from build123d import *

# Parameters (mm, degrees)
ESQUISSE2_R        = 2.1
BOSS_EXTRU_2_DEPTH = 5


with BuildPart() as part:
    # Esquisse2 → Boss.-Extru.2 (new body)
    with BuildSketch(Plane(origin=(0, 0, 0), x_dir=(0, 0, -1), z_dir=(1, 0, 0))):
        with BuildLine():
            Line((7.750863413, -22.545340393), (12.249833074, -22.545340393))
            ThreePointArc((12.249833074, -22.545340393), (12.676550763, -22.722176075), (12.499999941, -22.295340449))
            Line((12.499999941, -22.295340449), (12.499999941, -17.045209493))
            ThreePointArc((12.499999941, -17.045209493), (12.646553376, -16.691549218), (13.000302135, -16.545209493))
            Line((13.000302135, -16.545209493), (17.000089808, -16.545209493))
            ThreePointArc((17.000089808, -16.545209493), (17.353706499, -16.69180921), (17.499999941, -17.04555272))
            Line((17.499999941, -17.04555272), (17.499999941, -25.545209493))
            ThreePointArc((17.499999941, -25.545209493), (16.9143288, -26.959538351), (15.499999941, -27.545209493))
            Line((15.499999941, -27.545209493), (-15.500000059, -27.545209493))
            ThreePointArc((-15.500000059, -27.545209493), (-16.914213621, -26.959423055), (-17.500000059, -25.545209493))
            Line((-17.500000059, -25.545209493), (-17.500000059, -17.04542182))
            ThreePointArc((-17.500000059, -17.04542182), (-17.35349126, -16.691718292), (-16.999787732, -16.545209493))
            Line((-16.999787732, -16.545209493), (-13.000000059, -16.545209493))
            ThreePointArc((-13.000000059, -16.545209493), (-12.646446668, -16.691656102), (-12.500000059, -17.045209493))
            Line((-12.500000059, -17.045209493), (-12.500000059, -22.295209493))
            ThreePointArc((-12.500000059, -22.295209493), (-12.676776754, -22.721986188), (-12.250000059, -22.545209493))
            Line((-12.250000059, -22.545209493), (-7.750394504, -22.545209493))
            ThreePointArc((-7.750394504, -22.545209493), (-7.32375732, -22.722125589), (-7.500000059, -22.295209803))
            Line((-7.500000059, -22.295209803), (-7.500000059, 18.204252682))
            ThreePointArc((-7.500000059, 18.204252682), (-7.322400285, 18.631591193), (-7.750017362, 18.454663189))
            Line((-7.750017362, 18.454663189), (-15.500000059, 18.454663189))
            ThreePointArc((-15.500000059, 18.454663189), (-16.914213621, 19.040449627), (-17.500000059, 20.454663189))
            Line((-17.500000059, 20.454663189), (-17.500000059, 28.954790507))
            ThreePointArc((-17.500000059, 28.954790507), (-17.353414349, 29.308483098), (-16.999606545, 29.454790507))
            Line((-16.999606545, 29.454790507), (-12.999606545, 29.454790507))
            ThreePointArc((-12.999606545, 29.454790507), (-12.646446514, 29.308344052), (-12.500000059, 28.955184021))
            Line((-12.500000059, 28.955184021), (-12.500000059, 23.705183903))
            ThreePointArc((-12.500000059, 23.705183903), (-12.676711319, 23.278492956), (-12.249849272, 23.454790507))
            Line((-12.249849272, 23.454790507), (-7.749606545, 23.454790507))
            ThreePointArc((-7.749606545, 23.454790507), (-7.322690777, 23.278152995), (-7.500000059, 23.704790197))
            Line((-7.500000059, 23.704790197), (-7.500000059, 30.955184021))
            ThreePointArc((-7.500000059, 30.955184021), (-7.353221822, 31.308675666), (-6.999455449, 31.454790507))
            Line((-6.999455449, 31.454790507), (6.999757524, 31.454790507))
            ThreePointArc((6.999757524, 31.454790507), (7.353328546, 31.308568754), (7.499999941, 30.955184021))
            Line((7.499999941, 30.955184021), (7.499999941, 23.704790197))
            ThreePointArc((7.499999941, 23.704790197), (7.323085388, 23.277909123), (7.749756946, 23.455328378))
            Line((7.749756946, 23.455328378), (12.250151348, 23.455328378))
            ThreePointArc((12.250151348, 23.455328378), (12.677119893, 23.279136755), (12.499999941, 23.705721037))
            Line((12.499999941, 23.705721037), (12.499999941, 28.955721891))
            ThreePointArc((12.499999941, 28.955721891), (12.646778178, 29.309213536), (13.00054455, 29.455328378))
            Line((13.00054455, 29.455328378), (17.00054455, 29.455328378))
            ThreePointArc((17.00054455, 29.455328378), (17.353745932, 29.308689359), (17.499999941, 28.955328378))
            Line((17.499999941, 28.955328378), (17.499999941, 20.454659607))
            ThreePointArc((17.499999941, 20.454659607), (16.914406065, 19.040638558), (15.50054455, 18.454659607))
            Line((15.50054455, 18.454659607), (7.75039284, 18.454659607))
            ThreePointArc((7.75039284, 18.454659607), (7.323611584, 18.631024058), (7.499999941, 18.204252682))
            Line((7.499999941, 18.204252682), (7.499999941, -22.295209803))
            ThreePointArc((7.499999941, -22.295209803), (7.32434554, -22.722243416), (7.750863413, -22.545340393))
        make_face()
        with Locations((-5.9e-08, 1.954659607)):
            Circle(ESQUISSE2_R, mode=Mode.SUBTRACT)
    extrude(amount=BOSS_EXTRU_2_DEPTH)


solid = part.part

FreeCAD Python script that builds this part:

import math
import FreeCAD as App
import Part
import Sketcher

V = App.Vector
Q = App.Units.Quantity

doc = App.newDocument("Part")
body = doc.addObject("PartDesign::Body", "Body")

sketch1 = doc.addObject("Sketcher::SketchObject", "Sketch")
body.addObject(sketch1)
sketch1.AttachmentSupport = (doc.YZ_Plane, [""])
sketch1.MapMode = "FlatFace"
sketch1.addGeometry([
    Part.LineSegment(V(-22.54534, -12.249833, 0), V(-22.54534, -7.750863, 0)),
    Part.ArcOfCircle(Part.Circle(V(-22.545208, -7.500863, 0), V(0, 0, 1), 0.25), math.radians(0.197902), math.radians(269.969729)),
    Part.LineSegment(V(-22.29521, -7.5, 0), V(18.204253, -7.5, 0)),
    Part.ArcOfCircle(Part.Circle(V(18.454252, -7.500393, 0), V(0, 0, 1), 0.25), math.radians(-89.906661), math.radians(179.90987)),
    Part.LineSegment(V(18.45466, -7.750393, 0), V(18.45466, -15.500545, 0)),
    Part.ArcOfCircle(Part.Circle(V(20.45466, -15.5, 0), V(0, 0, 1), 2), math.radians(-179.984398), math.radians(-89.999998)),
    Part.LineSegment(V(20.45466, -17.5, 0), V(28.955328, -17.5, 0)),
    Part.ArcOfCircle(Part.Circle(V(28.955329, -17, 0), V(0, 0, 1), 0.5), math.radians(-90.000034), math.radians(-0.062408)),
    Part.LineSegment(V(29.455328, -17.000545, 0), V(29.455328, -13.000545, 0)),
    Part.ArcOfCircle(Part.Circle(V(28.955329, -13, 0), V(0, 0, 1), 0.5), math.radians(-0.062425), math.radians(89.954941)),
    Part.LineSegment(V(28.955722, -12.5, 0), V(23.705721, -12.5, 0)),
    Part.ArcOfCircle(Part.Circle(V(23.455721, -12.500151, 0), V(0, 0, 1), 0.25), math.radians(90.090001), math.radians(360.034629)),
    Part.LineSegment(V(23.455328, -12.250151, 0), V(23.455328, -7.749757, 0)),
    Part.ArcOfCircle(Part.Circle(V(23.45479, -7.499758, 0), V(0, 0, 1), 0.25), math.radians(-0.055558), math.radians(270.123315)),
    Part.LineSegment(V(23.70479, -7.5, 0), V(30.955184, -7.5, 0)),
    Part.ArcOfCircle(Part.Circle(V(30.954791, -7, 0), V(0, 0, 1), 0.5), math.radians(-89.954913), math.radians(0.027797)),
    Part.LineSegment(V(31.454791, -6.999758, 0), V(31.454791, 6.999455, 0)),
    Part.ArcOfCircle(Part.Circle(V(30.954791, 7, 0), V(0, 0, 1), 0.5), math.radians(-0.062425), math.radians(89.954941)),
    Part.LineSegment(V(30.955184, 7.5, 0), V(23.70479, 7.5, 0)),
    Part.ArcOfCircle(Part.Circle(V(23.454791, 7.499607, 0), V(0, 0, 1), 0.25), math.radians(90), math.radians(360.090187)),
    Part.LineSegment(V(23.454791, 7.749607, 0), V(23.454791, 12.249849, 0)),
    Part.ArcOfCircle(Part.Circle(V(23.455184, 12.499849, 0), V(0, 0, 1), 0.25), math.radians(0.034629), math.radians(269.90983)),
    Part.LineSegment(V(23.705184, 12.5, 0), V(28.955184, 12.5, 0)),
    Part.ArcOfCircle(Part.Circle(V(28.954791, 13, 0), V(0, 0, 1), 0.5), math.radians(-89.954924), math.radians(-0.045076)),
    Part.LineSegment(V(29.454791, 12.999607, 0), V(29.454791, 16.999607, 0)),
    Part.ArcOfCircle(Part.Circle(V(28.954791, 17, 0), V(0, 0, 1), 0.5), math.radians(-0.045093), math.radians(90.000018)),
    Part.LineSegment(V(28.954791, 17.5, 0), V(20.454663, 17.5, 0)),
    Part.ArcOfCircle(Part.Circle(V(20.454663, 15.5, 0), V(0, 0, 1), 2), math.radians(90), math.radians(180)),
    Part.LineSegment(V(18.454663, 15.5, 0), V(18.454663, 7.750017, 0)),
    Part.ArcOfCircle(Part.Circle(V(18.454663, 7.499607, 0), V(0, 0, 1), 0.250411), math.radians(179.909961), math.radians(450)),
    Part.LineSegment(V(18.204253, 7.5, 0), V(-22.29521, 7.5, 0)),
    Part.ArcOfCircle(Part.Circle(V(-22.545209, 7.500395, 0), V(0, 0, 1), 0.25), math.radians(90), math.radians(359.9096)),
    Part.LineSegment(V(-22.545209, 7.750395, 0), V(-22.545209, 12.25, 0)),
    Part.ArcOfCircle(Part.Circle(V(-22.545209, 12.5, 0), V(0, 0, 1), 0.25), math.radians(0), math.radians(270)),
    Part.LineSegment(V(-22.295209, 12.5, 0), V(-17.045209, 12.5, 0)),
    Part.ArcOfCircle(Part.Circle(V(-17.045209, 13, 0), V(0, 0, 1), 0.5), math.radians(-90), math.radians(0)),
    Part.LineSegment(V(-16.545209, 13, 0), V(-16.545209, 16.999788, 0)),
    Part.ArcOfCircle(Part.Circle(V(-17.045422, 16.999788, 0), V(0, 0, 1), 0.500212), math.radians(0), math.radians(90)),
    Part.LineSegment(V(-17.045422, 17.5, 0), V(-25.545209, 17.5, 0)),
    Part.ArcOfCircle(Part.Circle(V(-25.545209, 15.5, 0), V(0, 0, 1), 2), math.radians(90), math.radians(180)),
    Part.LineSegment(V(-27.545209, 15.5, 0), V(-27.545209, -15.5, 0)),
    Part.ArcOfCircle(Part.Circle(V(-25.545603, -15.500393, 0), V(0, 0, 1), 1.999606), math.radians(179.988723), math.radians(270.011277)),
    Part.LineSegment(V(-25.545209, -17.5, 0), V(-17.045553, -17.5, 0)),
    Part.ArcOfCircle(Part.Circle(V(-17.045209, -17, 0), V(0, 0, 1), 0.5), math.radians(-90.039332), math.radians(-0.010284)),
    Part.LineSegment(V(-16.545209, -17.00009, 0), V(-16.545209, -13.000302, 0)),
    Part.ArcOfCircle(Part.Circle(V(-17.045209, -13, 0), V(0, 0, 1), 0.5), math.radians(-0.034629), math.radians(90.00001)),
    Part.LineSegment(V(-17.045209, -12.5, 0), V(-22.29534, -12.5, 0)),
    Part.ArcOfCircle(Part.Circle(V(-22.54534, -12.499833, 0), V(0, 0, 1), 0.25), math.radians(90), math.radians(359.961757)),
    Part.Circle(V(1.95466, 0, 0), V(0, 0, 1), 2.1),
], False)
sketch1.addConstraint([
    Sketcher.Constraint("Coincident", 0, 2, 1, 2),
    Sketcher.Constraint("Coincident", 1, 1, 2, 1),
    Sketcher.Constraint("Coincident", 2, 2, 3, 2),
    Sketcher.Constraint("Coincident", 3, 1, 4, 1),
    Sketcher.Constraint("Coincident", 4, 2, 5, 1),
    Sketcher.Constraint("Tangent", 5, 2, 6, 1),
    Sketcher.Constraint("Tangent", 6, 2, 7, 1),
    Sketcher.Constraint("Coincident", 7, 2, 8, 1),
    Sketcher.Constraint("Coincident", 8, 2, 9, 1),
    Sketcher.Constraint("Coincident", 9, 2, 10, 1),
    Sketcher.Constraint("Coincident", 10, 2, 11, 2),
    Sketcher.Constraint("Coincident", 11, 1, 12, 1),
    Sketcher.Constraint("Coincident", 12, 2, 13, 2),
    Sketcher.Constraint("Coincident", 13, 1, 14, 1),
    Sketcher.Constraint("Coincident", 14, 2, 15, 1),
    Sketcher.Constraint("Coincident", 15, 2, 16, 1),
    Sketcher.Constraint("Coincident", 16, 2, 17, 1),
    Sketcher.Constraint("Coincident", 17, 2, 18, 1),
    Sketcher.Constraint("Coincident", 18, 2, 19, 2),
    Sketcher.Constraint("Coincident", 19, 1, 20, 1),
    Sketcher.Constraint("Coincident", 20, 2, 21, 2),
    Sketcher.Constraint("Coincident", 21, 1, 22, 1),
    Sketcher.Constraint("Coincident", 22, 2, 23, 1),
    Sketcher.Constraint("Coincident", 23, 2, 24, 1),
    Sketcher.Constraint("Coincident", 24, 2, 25, 1),
    Sketcher.Constraint("Tangent", 25, 2, 26, 1),
    Sketcher.Constraint("Tangent", 26, 2, 27, 1),
    Sketcher.Constraint("Tangent", 27, 2, 28, 1),
    Sketcher.Constraint("Coincident", 28, 2, 29, 2),
    Sketcher.Constraint("Coincident", 29, 1, 30, 1),
    Sketcher.Constraint("Coincident", 30, 2, 31, 2),
    Sketcher.Constraint("Coincident", 31, 1, 32, 1),
    Sketcher.Constraint("Coincident", 32, 2, 33, 2),
    Sketcher.Constraint("Coincident", 33, 1, 34, 1),
    Sketcher.Constraint("Tangent", 34, 2, 35, 1),
    Sketcher.Constraint("Tangent", 35, 2, 36, 1),
    Sketcher.Constraint("Tangent", 36, 2, 37, 1),
    Sketcher.Constraint("Tangent", 37, 2, 38, 1),
    Sketcher.Constraint("Tangent", 38, 2, 39, 1),
    Sketcher.Constraint("Tangent", 39, 2, 40, 1),
    Sketcher.Constraint("Coincident", 40, 2, 41, 1),
    Sketcher.Constraint("Coincident", 41, 2, 42, 1),
    Sketcher.Constraint("Coincident", 42, 2, 43, 1),
    Sketcher.Constraint("Coincident", 43, 2, 44, 1),
    Sketcher.Constraint("Coincident", 44, 2, 45, 1),
    Sketcher.Constraint("Tangent", 45, 2, 46, 1),
    Sketcher.Constraint("Coincident", 46, 2, 47, 2),
    Sketcher.Constraint("Coincident", 47, 1, 0, 1),
    Sketcher.Constraint("Vertical", 0),
    Sketcher.Constraint("Horizontal", 2),
    Sketcher.Constraint("Vertical", 4),
    Sketcher.Constraint("Horizontal", 6),
    Sketcher.Constraint("Vertical", 8),
    Sketcher.Constraint("Horizontal", 10),
    Sketcher.Constraint("Vertical", 12),
    Sketcher.Constraint("Horizontal", 14),
    Sketcher.Constraint("Vertical", 16),
    Sketcher.Constraint("Horizontal", 18),
    Sketcher.Constraint("Vertical", 20),
    Sketcher.Constraint("Horizontal", 22),
    Sketcher.Constraint("Vertical", 24),
    Sketcher.Constraint("Horizontal", 26),
    Sketcher.Constraint("Vertical", 28),
    Sketcher.Constraint("Horizontal", 30),
    Sketcher.Constraint("Vertical", 32),
    Sketcher.Constraint("Horizontal", 34),
    Sketcher.Constraint("Vertical", 36),
    Sketcher.Constraint("Horizontal", 38),
    Sketcher.Constraint("Vertical", 40),
    Sketcher.Constraint("Horizontal", 42),
    Sketcher.Constraint("Vertical", 44),
    Sketcher.Constraint("Horizontal", 46),
    Sketcher.Constraint("Equal", 1, 3),
    Sketcher.Constraint("Equal", 7, 9),
    Sketcher.Constraint("Equal", 3, 11),
    Sketcher.Constraint("Equal", 11, 13),
    Sketcher.Constraint("Equal", 9, 15),
    Sketcher.Constraint("Equal", 15, 17),
    Sketcher.Constraint("Equal", 13, 19),
    Sketcher.Constraint("Equal", 19, 21),
    Sketcher.Constraint("Equal", 17, 23),
    Sketcher.Constraint("Equal", 23, 25),
    Sketcher.Constraint("Equal", 5, 27),
    Sketcher.Constraint("Equal", 21, 31),
    Sketcher.Constraint("Equal", 31, 33),
    Sketcher.Constraint("Equal", 25, 35),
    Sketcher.Constraint("Equal", 27, 39),
    Sketcher.Constraint("Equal", 35, 43),
    Sketcher.Constraint("Equal", 43, 45),
    Sketcher.Constraint("Equal", 33, 47),
    Sketcher.Constraint("Symmetric", 5, 3, 27, 3, -1),
    Sketcher.Constraint("Symmetric", 35, 3, 45, 3, -1),
    Sketcher.Constraint("Symmetric", 14, 2, 17, 2, -1),
    Sketcher.Constraint("Symmetric", 2, 2, 29, 1, -1),
    Sketcher.Constraint("Symmetric", 38, 2, 41, 2, -1),
    Sketcher.Constraint("PointOnObject", 48, 3, -1),
    Sketcher.Constraint("Horizontal", 19, 3, 29, 3),
    Sketcher.Constraint("Horizontal", 23, 3, 35, 3),
    Sketcher.Constraint("Horizontal", 27, 3, 39, 3),
    Sketcher.Constraint("Horizontal", 9, 3, 45, 3),
    Sketcher.Constraint("Horizontal", 2, 2, 13, 1),
    Sketcher.Constraint("Horizontal", 33, 3, 21, 1),
    Sketcher.Constraint("Horizontal", 5, 3, 40, 2),
    Sketcher.Constraint("Vertical", 13, 3, 19, 3),
    Sketcher.Constraint("Vertical", 1, 3, 31, 3),
    Sketcher.Constraint("Vertical", 31, 3, 33, 3),
    Sketcher.Constraint("Vertical", 47, 3, 0, 2),
    Sketcher.Constraint("Vertical", 13, 3, 19, 1),
    Sketcher.Constraint("Vertical", 29, 3, 27, 2),
    Sketcher.Constraint("Vertical", 33, 3, 31, 1),
    Sketcher.Constraint("Equal", 10, 22),
    Sketcher.Constraint("Equal", 22, 34),
    Sketcher.Constraint("Equal", 8, 24),
    Sketcher.Constraint("Equal", 36, 44),
    Sketcher.Constraint("Radius", 5, Q("2 mm")),
    Sketcher.Constraint("Diameter", 48, Q("4.2 mm")),
    Sketcher.Constraint("Radius", 7, Q("0.5 mm")),
    Sketcher.Constraint("DistanceY", 8, 1, 8, 2, Q("4 mm")),
    Sketcher.Constraint("DistanceY", 40, 2, 40, 1, Q("31 mm")),
    Sketcher.Constraint("Radius", 1, Q("0.25 mm")),
    Sketcher.Constraint("DistanceY", 9, 3, -1, 1, Q("13 mm")),
    Sketcher.Constraint("DistanceY", 15, 3, -1, 1, Q("7 mm")),
    Sketcher.Constraint("DistanceX", 10, 2, 10, 1, Q("5.250001 mm")),
    Sketcher.Constraint("Radius", 29, Q("0.250411 mm")),
    Sketcher.Constraint("Radius", 37, Q("0.500212 mm")),
    Sketcher.Constraint("Radius", 41, Q("1.999606 mm")),
    Sketcher.Constraint("DistanceX", 6, 1, 6, 2, Q("8.500669 mm")),
    Sketcher.Constraint("DistanceX", 46, 2, 46, 1, Q("5.250131 mm")),
    Sketcher.Constraint("DistanceY", 0, 1, 0, 2, Q("4.49897 mm")),
    Sketcher.Constraint("DistanceY", 4, 2, 4, 1, Q("7.750152 mm")),
    Sketcher.Constraint("DistanceX", 2, 1, 2, 2, Q("40.499462 mm")),
    Sketcher.Constraint("DistanceX", 14, 1, 14, 2, Q("7.250394 mm")),
    Sketcher.Constraint("DistanceX", 26, 2, 26, 1, Q("8.500127 mm")),
    Sketcher.Constraint("DistanceX", 38, 2, 38, 1, Q("8.499788 mm")),
    Sketcher.Constraint("DistanceX", 42, 1, 42, 2, Q("8.499657 mm")),
    Sketcher.Constraint("DistanceY", 12, 1, 12, 2, Q("4.500394 mm")),
    Sketcher.Constraint("DistanceY", 16, 1, 16, 2, Q("13.999213 mm")),
    Sketcher.Constraint("DistanceY", 20, 1, 20, 2, Q("4.500243 mm")),
    Sketcher.Constraint("DistanceY", 28, 2, 28, 1, Q("7.749983 mm")),
    Sketcher.Constraint("DistanceY", 32, 1, 32, 2, Q("4.499606 mm")),
    Sketcher.Constraint("DistanceX", 1, 3, -1, 1, Q("22.545208 mm")),
    Sketcher.Constraint("DistanceX", -1, 1, 11, 3, Q("23.455721 mm")),
    Sketcher.Constraint("DistanceY", 11, 3, -1, 1, Q("12.500151 mm")),
    Sketcher.Constraint("DistanceX", -1, 1, 13, 3, Q("23.45479 mm")),
    Sketcher.Constraint("DistanceX", -1, 1, 15, 3, Q("30.954791 mm")),
    Sketcher.Constraint("DistanceX", -1, 1, 48, 3, Q("1.95466 mm")),
    Sketcher.Constraint("DistanceX", -1, 1, 11, 1, Q("23.455328 mm")),
    Sketcher.Constraint("DistanceY", 43, 2, -1, 1, Q("17.00009 mm")),
    Sketcher.Constraint("DistanceY", 1, 3, -1, 1, Q("7.500863 mm")),
    Sketcher.Constraint("DistanceY", 3, 3, -1, 1, Q("7.500393 mm")),
    Sketcher.Constraint("DistanceX", -1, 1, 21, 3, Q("23.455184 mm")),
    Sketcher.Constraint("DistanceY", 7, 2, -1, 1, Q("17.000545 mm")),
    Sketcher.Constraint("DistanceY", 15, 2, -1, 1, Q("6.999758 mm")),
    Sketcher.Constraint("DistanceY", -1, 1, 23, 2, Q("12.999607 mm")),
])
pad1 = doc.addObject("PartDesign::Pad", "Pad")
body.addObject(pad1)
pad1.Profile = sketch1
pad1.Length = 5

doc.recompute()
